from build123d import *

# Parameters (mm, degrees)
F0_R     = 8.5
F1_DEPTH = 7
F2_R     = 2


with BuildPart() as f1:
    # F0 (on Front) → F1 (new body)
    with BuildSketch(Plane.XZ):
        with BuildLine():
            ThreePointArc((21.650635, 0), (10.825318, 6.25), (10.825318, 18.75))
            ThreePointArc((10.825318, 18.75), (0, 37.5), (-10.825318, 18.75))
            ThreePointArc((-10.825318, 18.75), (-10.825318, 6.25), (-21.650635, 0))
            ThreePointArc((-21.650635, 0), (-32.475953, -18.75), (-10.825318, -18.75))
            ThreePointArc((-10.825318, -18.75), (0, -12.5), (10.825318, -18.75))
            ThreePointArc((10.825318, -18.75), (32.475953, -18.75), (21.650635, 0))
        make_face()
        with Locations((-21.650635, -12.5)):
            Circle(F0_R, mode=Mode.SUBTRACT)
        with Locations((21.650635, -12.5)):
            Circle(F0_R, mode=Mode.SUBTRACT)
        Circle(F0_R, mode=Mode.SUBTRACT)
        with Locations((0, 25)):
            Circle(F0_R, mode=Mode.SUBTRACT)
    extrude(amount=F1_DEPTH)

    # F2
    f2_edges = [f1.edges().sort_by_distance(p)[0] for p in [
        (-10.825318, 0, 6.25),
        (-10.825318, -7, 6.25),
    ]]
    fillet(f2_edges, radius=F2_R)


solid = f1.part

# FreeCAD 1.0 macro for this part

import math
import FreeCAD as App
import Part
import Sketcher
Q = App.Units.Quantity


def edges_at(feature, points):
    """Names of the edges that pass closest to the given points."""
    edges = feature.Shape.Edges
    near = lambda p: min(range(len(edges)), key=lambda i: edges[i].distToShape(Part.Vertex(*p))[0])
    return sorted({f"Edge{near(p) + 1}" for p in points})

doc = App.newDocument("Part")
params = doc.addObject("Spreadsheet::Sheet", "Params")
for row, (alias, value) in enumerate([
    ("sketch1_diameter", "17 mm"),
    ("sketch1_radius", "12.5 mm"),
    ("pad1_length", "7 mm"),
    ("fillet_radius", "2 mm"),
], start=1):
    params.set(f"A{row}", alias)
    params.set(f"B{row}", "=" + value)
    params.setAlias(f"B{row}", alias)

body = doc.addObject("PartDesign::Body", "Body")

# Sketch on XZ plane
sketch1 = doc.addObject("Sketcher::SketchObject", "Sketch")
body.addObject(sketch1)
sketch1.AttachmentSupport = (doc.XZ_Plane, [""])
sketch1.MapMode = "FlatFace"
sketch1.addGeometry(Part.ArcOfCircle(Part.Circle(App.Vector(22, 12, 0), App.Vector(0, 0, 1), 12), math.radians(150), math.radians(270)), False)
sketch1.addGeometry(Part.ArcOfCircle(Part.Circle(App.Vector(0, 25, 0), App.Vector(0, 0, 1), 13), math.radians(-30), math.radians(210)), False)
sketch1.addGeometry(Part.ArcOfCircle(Part.Circle(App.Vector(-22, 12, 0), App.Vector(0, 0, 1), 12), math.radians(-90), math.radians(30)), False)
sketch1.addGeometry(Part.ArcOfCircle(Part.Circle(App.Vector(-22, -12, 0), App.Vector(0, 0, 1), 12), math.radians(90), math.radians(330)), False)
sketch1.addGeometry(Part.ArcOfCircle(Part.Circle(App.Vector(0, -25, 0), App.Vector(0, 0, 1), 13), math.radians(30), math.radians(150)), False)
sketch1.addGeometry(Part.ArcOfCircle(Part.Circle(App.Vector(22, -12, 0), App.Vector(0, 0, 1), 12), math.radians(-150), math.radians(90)), False)
sketch1.addGeometry(Part.Circle(App.Vector(-22, -12, 0), App.Vector(0, 0, 1), 8), False)
sketch1.addGeometry(Part.Circle(App.Vector(0, 0, 0), App.Vector(0, 0, 1), 8), False)
sketch1.addGeometry(Part.Circle(App.Vector(22, -12, 0), App.Vector(0, 0, 1), 8), False)
sketch1.addGeometry(Part.Circle(App.Vector(0, 25, 0), App.Vector(0, 0, 1), 8), False)
sketch1.addConstraint(Sketcher.Constraint("Tangent", 0, 1, 1, 1))
sketch1.addConstraint(Sketcher.Constraint("Tangent", 1, 2, 2, 2))
sketch1.addConstraint(Sketcher.Constraint("Tangent", 2, 1, 3, 1))
sketch1.addConstraint(Sketcher.Constraint("Tangent", 3, 2, 4, 2))
sketch1.addConstraint(Sketcher.Constraint("Tangent", 4, 1, 5, 1))
sketch1.addConstraint(Sketcher.Constraint("Tangent", 5, 2, 0, 2))
sketch1.addConstraint(Sketcher.Constraint("Coincident", 7, 3, -1, 1))
sketch1.addConstraint(Sketcher.Constraint("Coincident", 6, 3, 3, 3))
sketch1.addConstraint(Sketcher.Constraint("Coincident", 8, 3, 5, 3))
sketch1.addConstraint(Sketcher.Constraint("Coincident", 9, 3, 1, 3))
sketch1.addConstraint(Sketcher.Constraint("Equal", 0, 1))
sketch1.addConstraint(Sketcher.Constraint("Equal", 1, 2))
sketch1.addConstraint(Sketcher.Constraint("Equal", 2, 3))
sketch1.addConstraint(Sketcher.Constraint("Equal", 3, 4))
sketch1.addConstraint(Sketcher.Constraint("Equal", 4, 5))
sketch1.addConstraint(Sketcher.Constraint("Equal", 6, 7))
sketch1.addConstraint(Sketcher.Constraint("Equal", 7, 8))
sketch1.addConstraint(Sketcher.Constraint("Equal", 8, 9))
sketch1.addConstraint(Sketcher.Constraint("Symmetric", 0, 3, 3, 3, -1, 1))
sketch1.addConstraint(Sketcher.Constraint("Symmetric", 0, 3, 2, 3, -2))
sketch1.addConstraint(Sketcher.Constraint("PointOnObject", 4, 3, -2))
sketch1.addConstraint(Sketcher.Constraint("Diameter", 6, Q("17 mm")))
sketch1.addConstraint(Sketcher.Constraint("Radius", 0, Q("12.5 mm")))
sketch1.addConstraint(Sketcher.Constraint("DistanceY", -1, 1, 1, 3, Q("25 mm")))
sketch1.setExpression("Constraints[21]", "Params.sketch1_diameter")
sketch1.setExpression("Constraints[22]", "Params.sketch1_radius")
pad1 = doc.addObject("PartDesign::Pad", "Pad")
body.addObject(pad1)
pad1.Profile = sketch1
pad1.setExpression("Length", "Params.pad1_length")
doc.recompute()

fillet = doc.addObject("PartDesign::Fillet", "Fillet")
body.addObject(fillet)
fillet.Base = (pad1, edges_at(pad1, [(-10.825, 0, 6.25), (-10.825, -7, 6.25)]))
fillet.setExpression("Radius", "Params.fillet_radius")

doc.recompute()
